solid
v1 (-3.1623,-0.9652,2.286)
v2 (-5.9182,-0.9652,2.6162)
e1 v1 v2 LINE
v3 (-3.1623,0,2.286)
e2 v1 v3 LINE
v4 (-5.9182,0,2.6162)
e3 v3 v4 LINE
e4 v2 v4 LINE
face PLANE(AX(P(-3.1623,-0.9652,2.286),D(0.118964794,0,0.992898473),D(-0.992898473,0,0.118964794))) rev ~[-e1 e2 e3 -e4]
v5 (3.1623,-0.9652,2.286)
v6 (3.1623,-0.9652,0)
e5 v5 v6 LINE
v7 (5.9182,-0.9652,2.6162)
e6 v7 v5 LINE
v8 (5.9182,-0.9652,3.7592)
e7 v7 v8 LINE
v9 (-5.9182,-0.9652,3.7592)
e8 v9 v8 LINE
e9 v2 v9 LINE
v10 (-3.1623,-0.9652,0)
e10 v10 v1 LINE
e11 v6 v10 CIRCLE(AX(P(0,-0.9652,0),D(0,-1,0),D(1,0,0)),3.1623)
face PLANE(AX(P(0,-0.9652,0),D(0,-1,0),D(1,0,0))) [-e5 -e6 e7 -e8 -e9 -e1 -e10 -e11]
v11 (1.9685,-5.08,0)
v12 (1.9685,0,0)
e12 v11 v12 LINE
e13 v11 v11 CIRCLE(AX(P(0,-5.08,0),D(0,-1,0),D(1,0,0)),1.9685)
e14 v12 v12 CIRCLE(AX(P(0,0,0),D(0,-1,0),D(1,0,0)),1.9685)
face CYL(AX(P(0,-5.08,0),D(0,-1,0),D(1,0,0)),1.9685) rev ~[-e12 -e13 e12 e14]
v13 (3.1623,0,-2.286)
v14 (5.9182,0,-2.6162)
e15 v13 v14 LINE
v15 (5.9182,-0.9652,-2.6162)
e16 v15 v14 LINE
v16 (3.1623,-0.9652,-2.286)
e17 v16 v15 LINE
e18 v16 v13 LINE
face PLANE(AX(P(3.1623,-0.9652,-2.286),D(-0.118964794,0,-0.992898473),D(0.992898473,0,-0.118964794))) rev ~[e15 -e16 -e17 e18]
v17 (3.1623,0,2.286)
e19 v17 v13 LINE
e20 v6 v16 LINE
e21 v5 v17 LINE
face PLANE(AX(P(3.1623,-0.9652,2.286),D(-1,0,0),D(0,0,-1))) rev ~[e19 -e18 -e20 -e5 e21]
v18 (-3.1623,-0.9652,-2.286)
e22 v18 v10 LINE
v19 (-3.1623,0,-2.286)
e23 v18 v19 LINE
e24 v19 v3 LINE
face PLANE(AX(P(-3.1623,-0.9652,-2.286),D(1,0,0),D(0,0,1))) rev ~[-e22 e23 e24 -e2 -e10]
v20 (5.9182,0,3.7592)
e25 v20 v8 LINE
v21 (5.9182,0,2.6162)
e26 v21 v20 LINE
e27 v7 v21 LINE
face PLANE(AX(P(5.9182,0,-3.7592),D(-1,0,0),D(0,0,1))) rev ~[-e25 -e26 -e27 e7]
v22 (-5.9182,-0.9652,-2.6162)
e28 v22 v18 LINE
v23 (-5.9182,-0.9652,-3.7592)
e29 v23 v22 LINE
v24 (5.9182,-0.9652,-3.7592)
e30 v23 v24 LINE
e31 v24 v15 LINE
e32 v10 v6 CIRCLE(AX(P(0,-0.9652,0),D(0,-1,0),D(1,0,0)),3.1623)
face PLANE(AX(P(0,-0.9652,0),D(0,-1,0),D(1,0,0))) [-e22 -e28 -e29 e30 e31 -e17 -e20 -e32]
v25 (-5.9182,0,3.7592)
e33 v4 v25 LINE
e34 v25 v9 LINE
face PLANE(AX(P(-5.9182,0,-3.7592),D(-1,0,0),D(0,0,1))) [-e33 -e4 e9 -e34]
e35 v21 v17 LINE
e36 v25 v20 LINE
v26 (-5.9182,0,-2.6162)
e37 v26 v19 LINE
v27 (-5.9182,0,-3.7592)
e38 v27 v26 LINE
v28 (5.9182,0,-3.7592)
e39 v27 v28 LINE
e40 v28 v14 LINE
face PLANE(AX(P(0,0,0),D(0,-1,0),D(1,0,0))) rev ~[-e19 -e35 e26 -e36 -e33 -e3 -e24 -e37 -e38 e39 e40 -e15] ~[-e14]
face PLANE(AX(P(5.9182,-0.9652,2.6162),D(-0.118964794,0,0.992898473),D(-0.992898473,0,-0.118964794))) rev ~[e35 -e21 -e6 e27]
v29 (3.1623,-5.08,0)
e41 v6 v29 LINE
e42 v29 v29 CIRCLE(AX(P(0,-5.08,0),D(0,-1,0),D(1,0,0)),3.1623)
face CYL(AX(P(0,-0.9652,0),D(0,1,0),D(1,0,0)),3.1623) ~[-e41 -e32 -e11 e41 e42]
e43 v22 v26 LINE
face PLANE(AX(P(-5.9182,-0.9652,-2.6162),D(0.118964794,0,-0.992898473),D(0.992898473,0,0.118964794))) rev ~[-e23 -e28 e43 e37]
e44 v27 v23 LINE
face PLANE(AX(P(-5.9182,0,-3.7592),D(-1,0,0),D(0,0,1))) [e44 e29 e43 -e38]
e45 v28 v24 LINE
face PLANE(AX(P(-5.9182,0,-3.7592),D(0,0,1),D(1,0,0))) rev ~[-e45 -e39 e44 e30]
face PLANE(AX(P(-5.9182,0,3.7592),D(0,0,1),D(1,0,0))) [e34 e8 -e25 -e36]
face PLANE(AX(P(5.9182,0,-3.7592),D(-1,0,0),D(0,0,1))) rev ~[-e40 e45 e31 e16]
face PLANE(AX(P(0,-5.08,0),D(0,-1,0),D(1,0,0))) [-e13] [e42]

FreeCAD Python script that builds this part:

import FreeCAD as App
import Part
import Sketcher

V = App.Vector
Q = App.Units.Quantity

doc = App.newDocument("Part")
params = doc.addObject("Spreadsheet::Sheet", "Params")
for row, (alias, value) in enumerate([
    ("sketch1_width", "0.466 in"),
    ("sketch1_height", "0.296 in"),
    ("pad1_length", "0.038 in"),
    ("sketch2_diameter", "0.249 in"),
    ("pad2_length", "0.162 in"),
    ("sketch3_diameter", "0.155 in"),
    ("sketch4_height", "0.18 in"),
    ("sketch4_height2", "0.206 in"),
], start=1):
    params.set(f"A{row}", alias)
    params.set(f"B{row}", "=" + value)
    params.setAlias(f"B{row}", alias)

body = doc.addObject("PartDesign::Body", "Body")

# Sketch on XZ plane
sketch1 = doc.addObject("Sketcher::SketchObject", "Sketch")
body.addObject(sketch1)
sketch1.AttachmentSupport = (doc.XZ_Plane, [""])
sketch1.MapMode = "FlatFace"
sketch1.addGeometry([
    Part.LineSegment(V(-6, 4, 0), V(-6, -4, 0)),
    Part.LineSegment(V(-6, -4, 0), V(6, -4, 0)),
    Part.LineSegment(V(6, -4, 0), V(6, 4, 0)),
    Part.LineSegment(V(6, 4, 0), V(-6, 4, 0)),
], False)
sketch1.addConstraint([
    Sketcher.Constraint("Coincident", 0, 2, 1, 1),
    Sketcher.Constraint("Coincident", 1, 2, 2, 1),
    Sketcher.Constraint("Coincident", 2, 2, 3, 1),
    Sketcher.Constraint("Coincident", 3, 2, 0, 1),
    Sketcher.Constraint("Vertical", 0),
    Sketcher.Constraint("Horizontal", 1),
    Sketcher.Constraint("Vertical", 2),
    Sketcher.Constraint("Horizontal", 3),
    Sketcher.Constraint("Symmetric", 0, 2, 2, 2, -1, 1),
    Sketcher.Constraint("DistanceX", 1, 1, 1, 2, Q("0.466 in")),
    Sketcher.Constraint("DistanceY", 0, 2, 0, 1, Q("0.296 in")),
])
sketch1.setExpression("Constraints[9]", "Params.sketch1_width")
sketch1.setExpression("Constraints[10]", "Params.sketch1_height")
pad1 = doc.addObject("PartDesign::Pad", "Pad")
body.addObject(pad1)
pad1.Profile = sketch1
pad1.setExpression("Length", "Params.pad1_length")

# Sketch on XZ plane
sketch2 = doc.addObject("Sketcher::SketchObject", "Sketch001")
body.addObject(sketch2)
sketch2.AttachmentSupport = (doc.XZ_Plane, [""])
sketch2.MapMode = "FlatFace"
sketch2.AttachmentOffset = App.Placement(V(0, 0, 0.038 * 25.4), App.Rotation())
sketch2.addGeometry(Part.Circle(V(0, 0, 0), V(0, 0, 1), 3.2), False)
sketch2.addConstraint([
    Sketcher.Constraint("Coincident", 0, 3, -1, 1),
    Sketcher.Constraint("Diameter", 0, Q("0.249 in")),
])
sketch2.setExpression("Constraints[1]", "Params.sketch2_diameter")
pad2 = doc.addObject("PartDesign::Pad", "Pad001")
body.addObject(pad2)
pad2.Profile = sketch2
pad2.setExpression("Length", "Params.pad2_length")

# Sketch on XZ plane
sketch3 = doc.addObject("Sketcher::SketchObject", "Sketch002")
body.addObject(sketch3)
sketch3.AttachmentSupport = (doc.XZ_Plane, [""])
sketch3.MapMode = "FlatFace"
sketch3.AttachmentOffset = App.Placement(V(0, 0, 0.2 * 25.4), App.Rotation())
sketch3.addGeometry(Part.Circle(V(0, 0, 0), V(0, 0, 1), 2), False)
sketch3.addConstraint([
    Sketcher.Constraint("Coincident", 0, 3, -1, 1),
    Sketcher.Constraint("Diameter", 0, Q("0.155 in")),
])
sketch3.setExpression("Constraints[1]", "Params.sketch3_diameter")
pocket1 = doc.addObject("PartDesign::Pocket", "Pocket")
body.addObject(pocket1)
pocket1.Profile = sketch3
pocket1.Type = "ThroughAll"

# Sketch on XZ plane
sketch4 = doc.addObject("Sketcher::SketchObject", "Sketch003")
body.addObject(sketch4)
sketch4.AttachmentSupport = (doc.XZ_Plane, [""])
sketch4.MapMode = "FlatFace"
sketch4.AttachmentOffset = App.Placement(V(0, 0, 0.038 * 25.4), App.Rotation())
sketch4.addGeometry([
    Part.LineSegment(V(-3.2, -2.3, 0), V(-3.2, 2.3, 0)),  # 0
    Part.LineSegment(V(-3.2, 2.3, 0), V(-5.9, 2.6, 0)),  # 1
    Part.LineSegment(V(-5.9, 2.6, 0), V(-5.9, -2.6, 0)),  # 2
    Part.LineSegment(V(-5.9, -2.6, 0), V(-3.2, -2.3, 0)),  # 3
    Part.LineSegment(V(3.2, 2.3, 0), V(3.2, -2.3, 0)),  # 4
    Part.LineSegment(V(3.2, -2.3, 0), V(5.9, -2.6, 0)),  # 5
    Part.LineSegment(V(5.9, -2.6, 0), V(5.9, 2.6, 0)),  # 6
    Part.LineSegment(V(5.9, 2.6, 0), V(3.2, 2.3, 0)),  # 7
], False)
sketch4.addConstraint([
    Sketcher.Constraint("Coincident", 0, 2, 1, 1),
    Sketcher.Constraint("Coincident", 1, 2, 2, 1),
    Sketcher.Constraint("Coincident", 2, 2, 3, 1),
    Sketcher.Constraint("Coincident", 3, 2, 0, 1),
    Sketcher.Constraint("Coincident", 4, 2, 5, 1),
    Sketcher.Constraint("Coincident", 5, 2, 6, 1),
    Sketcher.Constraint("Coincident", 6, 2, 7, 1),
    Sketcher.Constraint("Coincident", 7, 2, 4, 1),
    Sketcher.Constraint("Vertical", 0),
    Sketcher.Constraint("Vertical", 2),
    Sketcher.Constraint("Vertical", 4),
    Sketcher.Constraint("Vertical", 6),
    Sketcher.Constraint("Symmetric", 0, 2, 4, 2, -1, 1),
    Sketcher.Constraint("Symmetric", 1, 2, 5, 2, -1, 1),
    Sketcher.Constraint("Parallel", 3, 7),
    Sketcher.Constraint("Horizontal", 3, 2, 4, 2),
    Sketcher.Constraint("Horizontal", 2, 2, 5, 2),
    Sketcher.Constraint("Horizontal", 1, 2, 6, 2),
    Sketcher.Constraint("DistanceY", 0, 1, 0, 2, Q("0.18 in")),
    Sketcher.Constraint("DistanceY", 2, 2, 2, 1, Q("0.206 in")),
    Sketcher.Constraint("DistanceX", 1, 2, -1, 1, Q("0.233 in")),
    Sketcher.Constraint("DistanceX", 3, 2, 4, 2, Q("0.249 in")),
])
sketch4.setExpression("Constraints[18]", "Params.sketch4_height")
sketch4.setExpression("Constraints[19]", "Params.sketch4_height2")
pocket2 = doc.addObject("PartDesign::Pocket", "Pocket001")
body.addObject(pocket2)
pocket2.Profile = sketch4
pocket2.Type = "ThroughAll"

doc.recompute()
